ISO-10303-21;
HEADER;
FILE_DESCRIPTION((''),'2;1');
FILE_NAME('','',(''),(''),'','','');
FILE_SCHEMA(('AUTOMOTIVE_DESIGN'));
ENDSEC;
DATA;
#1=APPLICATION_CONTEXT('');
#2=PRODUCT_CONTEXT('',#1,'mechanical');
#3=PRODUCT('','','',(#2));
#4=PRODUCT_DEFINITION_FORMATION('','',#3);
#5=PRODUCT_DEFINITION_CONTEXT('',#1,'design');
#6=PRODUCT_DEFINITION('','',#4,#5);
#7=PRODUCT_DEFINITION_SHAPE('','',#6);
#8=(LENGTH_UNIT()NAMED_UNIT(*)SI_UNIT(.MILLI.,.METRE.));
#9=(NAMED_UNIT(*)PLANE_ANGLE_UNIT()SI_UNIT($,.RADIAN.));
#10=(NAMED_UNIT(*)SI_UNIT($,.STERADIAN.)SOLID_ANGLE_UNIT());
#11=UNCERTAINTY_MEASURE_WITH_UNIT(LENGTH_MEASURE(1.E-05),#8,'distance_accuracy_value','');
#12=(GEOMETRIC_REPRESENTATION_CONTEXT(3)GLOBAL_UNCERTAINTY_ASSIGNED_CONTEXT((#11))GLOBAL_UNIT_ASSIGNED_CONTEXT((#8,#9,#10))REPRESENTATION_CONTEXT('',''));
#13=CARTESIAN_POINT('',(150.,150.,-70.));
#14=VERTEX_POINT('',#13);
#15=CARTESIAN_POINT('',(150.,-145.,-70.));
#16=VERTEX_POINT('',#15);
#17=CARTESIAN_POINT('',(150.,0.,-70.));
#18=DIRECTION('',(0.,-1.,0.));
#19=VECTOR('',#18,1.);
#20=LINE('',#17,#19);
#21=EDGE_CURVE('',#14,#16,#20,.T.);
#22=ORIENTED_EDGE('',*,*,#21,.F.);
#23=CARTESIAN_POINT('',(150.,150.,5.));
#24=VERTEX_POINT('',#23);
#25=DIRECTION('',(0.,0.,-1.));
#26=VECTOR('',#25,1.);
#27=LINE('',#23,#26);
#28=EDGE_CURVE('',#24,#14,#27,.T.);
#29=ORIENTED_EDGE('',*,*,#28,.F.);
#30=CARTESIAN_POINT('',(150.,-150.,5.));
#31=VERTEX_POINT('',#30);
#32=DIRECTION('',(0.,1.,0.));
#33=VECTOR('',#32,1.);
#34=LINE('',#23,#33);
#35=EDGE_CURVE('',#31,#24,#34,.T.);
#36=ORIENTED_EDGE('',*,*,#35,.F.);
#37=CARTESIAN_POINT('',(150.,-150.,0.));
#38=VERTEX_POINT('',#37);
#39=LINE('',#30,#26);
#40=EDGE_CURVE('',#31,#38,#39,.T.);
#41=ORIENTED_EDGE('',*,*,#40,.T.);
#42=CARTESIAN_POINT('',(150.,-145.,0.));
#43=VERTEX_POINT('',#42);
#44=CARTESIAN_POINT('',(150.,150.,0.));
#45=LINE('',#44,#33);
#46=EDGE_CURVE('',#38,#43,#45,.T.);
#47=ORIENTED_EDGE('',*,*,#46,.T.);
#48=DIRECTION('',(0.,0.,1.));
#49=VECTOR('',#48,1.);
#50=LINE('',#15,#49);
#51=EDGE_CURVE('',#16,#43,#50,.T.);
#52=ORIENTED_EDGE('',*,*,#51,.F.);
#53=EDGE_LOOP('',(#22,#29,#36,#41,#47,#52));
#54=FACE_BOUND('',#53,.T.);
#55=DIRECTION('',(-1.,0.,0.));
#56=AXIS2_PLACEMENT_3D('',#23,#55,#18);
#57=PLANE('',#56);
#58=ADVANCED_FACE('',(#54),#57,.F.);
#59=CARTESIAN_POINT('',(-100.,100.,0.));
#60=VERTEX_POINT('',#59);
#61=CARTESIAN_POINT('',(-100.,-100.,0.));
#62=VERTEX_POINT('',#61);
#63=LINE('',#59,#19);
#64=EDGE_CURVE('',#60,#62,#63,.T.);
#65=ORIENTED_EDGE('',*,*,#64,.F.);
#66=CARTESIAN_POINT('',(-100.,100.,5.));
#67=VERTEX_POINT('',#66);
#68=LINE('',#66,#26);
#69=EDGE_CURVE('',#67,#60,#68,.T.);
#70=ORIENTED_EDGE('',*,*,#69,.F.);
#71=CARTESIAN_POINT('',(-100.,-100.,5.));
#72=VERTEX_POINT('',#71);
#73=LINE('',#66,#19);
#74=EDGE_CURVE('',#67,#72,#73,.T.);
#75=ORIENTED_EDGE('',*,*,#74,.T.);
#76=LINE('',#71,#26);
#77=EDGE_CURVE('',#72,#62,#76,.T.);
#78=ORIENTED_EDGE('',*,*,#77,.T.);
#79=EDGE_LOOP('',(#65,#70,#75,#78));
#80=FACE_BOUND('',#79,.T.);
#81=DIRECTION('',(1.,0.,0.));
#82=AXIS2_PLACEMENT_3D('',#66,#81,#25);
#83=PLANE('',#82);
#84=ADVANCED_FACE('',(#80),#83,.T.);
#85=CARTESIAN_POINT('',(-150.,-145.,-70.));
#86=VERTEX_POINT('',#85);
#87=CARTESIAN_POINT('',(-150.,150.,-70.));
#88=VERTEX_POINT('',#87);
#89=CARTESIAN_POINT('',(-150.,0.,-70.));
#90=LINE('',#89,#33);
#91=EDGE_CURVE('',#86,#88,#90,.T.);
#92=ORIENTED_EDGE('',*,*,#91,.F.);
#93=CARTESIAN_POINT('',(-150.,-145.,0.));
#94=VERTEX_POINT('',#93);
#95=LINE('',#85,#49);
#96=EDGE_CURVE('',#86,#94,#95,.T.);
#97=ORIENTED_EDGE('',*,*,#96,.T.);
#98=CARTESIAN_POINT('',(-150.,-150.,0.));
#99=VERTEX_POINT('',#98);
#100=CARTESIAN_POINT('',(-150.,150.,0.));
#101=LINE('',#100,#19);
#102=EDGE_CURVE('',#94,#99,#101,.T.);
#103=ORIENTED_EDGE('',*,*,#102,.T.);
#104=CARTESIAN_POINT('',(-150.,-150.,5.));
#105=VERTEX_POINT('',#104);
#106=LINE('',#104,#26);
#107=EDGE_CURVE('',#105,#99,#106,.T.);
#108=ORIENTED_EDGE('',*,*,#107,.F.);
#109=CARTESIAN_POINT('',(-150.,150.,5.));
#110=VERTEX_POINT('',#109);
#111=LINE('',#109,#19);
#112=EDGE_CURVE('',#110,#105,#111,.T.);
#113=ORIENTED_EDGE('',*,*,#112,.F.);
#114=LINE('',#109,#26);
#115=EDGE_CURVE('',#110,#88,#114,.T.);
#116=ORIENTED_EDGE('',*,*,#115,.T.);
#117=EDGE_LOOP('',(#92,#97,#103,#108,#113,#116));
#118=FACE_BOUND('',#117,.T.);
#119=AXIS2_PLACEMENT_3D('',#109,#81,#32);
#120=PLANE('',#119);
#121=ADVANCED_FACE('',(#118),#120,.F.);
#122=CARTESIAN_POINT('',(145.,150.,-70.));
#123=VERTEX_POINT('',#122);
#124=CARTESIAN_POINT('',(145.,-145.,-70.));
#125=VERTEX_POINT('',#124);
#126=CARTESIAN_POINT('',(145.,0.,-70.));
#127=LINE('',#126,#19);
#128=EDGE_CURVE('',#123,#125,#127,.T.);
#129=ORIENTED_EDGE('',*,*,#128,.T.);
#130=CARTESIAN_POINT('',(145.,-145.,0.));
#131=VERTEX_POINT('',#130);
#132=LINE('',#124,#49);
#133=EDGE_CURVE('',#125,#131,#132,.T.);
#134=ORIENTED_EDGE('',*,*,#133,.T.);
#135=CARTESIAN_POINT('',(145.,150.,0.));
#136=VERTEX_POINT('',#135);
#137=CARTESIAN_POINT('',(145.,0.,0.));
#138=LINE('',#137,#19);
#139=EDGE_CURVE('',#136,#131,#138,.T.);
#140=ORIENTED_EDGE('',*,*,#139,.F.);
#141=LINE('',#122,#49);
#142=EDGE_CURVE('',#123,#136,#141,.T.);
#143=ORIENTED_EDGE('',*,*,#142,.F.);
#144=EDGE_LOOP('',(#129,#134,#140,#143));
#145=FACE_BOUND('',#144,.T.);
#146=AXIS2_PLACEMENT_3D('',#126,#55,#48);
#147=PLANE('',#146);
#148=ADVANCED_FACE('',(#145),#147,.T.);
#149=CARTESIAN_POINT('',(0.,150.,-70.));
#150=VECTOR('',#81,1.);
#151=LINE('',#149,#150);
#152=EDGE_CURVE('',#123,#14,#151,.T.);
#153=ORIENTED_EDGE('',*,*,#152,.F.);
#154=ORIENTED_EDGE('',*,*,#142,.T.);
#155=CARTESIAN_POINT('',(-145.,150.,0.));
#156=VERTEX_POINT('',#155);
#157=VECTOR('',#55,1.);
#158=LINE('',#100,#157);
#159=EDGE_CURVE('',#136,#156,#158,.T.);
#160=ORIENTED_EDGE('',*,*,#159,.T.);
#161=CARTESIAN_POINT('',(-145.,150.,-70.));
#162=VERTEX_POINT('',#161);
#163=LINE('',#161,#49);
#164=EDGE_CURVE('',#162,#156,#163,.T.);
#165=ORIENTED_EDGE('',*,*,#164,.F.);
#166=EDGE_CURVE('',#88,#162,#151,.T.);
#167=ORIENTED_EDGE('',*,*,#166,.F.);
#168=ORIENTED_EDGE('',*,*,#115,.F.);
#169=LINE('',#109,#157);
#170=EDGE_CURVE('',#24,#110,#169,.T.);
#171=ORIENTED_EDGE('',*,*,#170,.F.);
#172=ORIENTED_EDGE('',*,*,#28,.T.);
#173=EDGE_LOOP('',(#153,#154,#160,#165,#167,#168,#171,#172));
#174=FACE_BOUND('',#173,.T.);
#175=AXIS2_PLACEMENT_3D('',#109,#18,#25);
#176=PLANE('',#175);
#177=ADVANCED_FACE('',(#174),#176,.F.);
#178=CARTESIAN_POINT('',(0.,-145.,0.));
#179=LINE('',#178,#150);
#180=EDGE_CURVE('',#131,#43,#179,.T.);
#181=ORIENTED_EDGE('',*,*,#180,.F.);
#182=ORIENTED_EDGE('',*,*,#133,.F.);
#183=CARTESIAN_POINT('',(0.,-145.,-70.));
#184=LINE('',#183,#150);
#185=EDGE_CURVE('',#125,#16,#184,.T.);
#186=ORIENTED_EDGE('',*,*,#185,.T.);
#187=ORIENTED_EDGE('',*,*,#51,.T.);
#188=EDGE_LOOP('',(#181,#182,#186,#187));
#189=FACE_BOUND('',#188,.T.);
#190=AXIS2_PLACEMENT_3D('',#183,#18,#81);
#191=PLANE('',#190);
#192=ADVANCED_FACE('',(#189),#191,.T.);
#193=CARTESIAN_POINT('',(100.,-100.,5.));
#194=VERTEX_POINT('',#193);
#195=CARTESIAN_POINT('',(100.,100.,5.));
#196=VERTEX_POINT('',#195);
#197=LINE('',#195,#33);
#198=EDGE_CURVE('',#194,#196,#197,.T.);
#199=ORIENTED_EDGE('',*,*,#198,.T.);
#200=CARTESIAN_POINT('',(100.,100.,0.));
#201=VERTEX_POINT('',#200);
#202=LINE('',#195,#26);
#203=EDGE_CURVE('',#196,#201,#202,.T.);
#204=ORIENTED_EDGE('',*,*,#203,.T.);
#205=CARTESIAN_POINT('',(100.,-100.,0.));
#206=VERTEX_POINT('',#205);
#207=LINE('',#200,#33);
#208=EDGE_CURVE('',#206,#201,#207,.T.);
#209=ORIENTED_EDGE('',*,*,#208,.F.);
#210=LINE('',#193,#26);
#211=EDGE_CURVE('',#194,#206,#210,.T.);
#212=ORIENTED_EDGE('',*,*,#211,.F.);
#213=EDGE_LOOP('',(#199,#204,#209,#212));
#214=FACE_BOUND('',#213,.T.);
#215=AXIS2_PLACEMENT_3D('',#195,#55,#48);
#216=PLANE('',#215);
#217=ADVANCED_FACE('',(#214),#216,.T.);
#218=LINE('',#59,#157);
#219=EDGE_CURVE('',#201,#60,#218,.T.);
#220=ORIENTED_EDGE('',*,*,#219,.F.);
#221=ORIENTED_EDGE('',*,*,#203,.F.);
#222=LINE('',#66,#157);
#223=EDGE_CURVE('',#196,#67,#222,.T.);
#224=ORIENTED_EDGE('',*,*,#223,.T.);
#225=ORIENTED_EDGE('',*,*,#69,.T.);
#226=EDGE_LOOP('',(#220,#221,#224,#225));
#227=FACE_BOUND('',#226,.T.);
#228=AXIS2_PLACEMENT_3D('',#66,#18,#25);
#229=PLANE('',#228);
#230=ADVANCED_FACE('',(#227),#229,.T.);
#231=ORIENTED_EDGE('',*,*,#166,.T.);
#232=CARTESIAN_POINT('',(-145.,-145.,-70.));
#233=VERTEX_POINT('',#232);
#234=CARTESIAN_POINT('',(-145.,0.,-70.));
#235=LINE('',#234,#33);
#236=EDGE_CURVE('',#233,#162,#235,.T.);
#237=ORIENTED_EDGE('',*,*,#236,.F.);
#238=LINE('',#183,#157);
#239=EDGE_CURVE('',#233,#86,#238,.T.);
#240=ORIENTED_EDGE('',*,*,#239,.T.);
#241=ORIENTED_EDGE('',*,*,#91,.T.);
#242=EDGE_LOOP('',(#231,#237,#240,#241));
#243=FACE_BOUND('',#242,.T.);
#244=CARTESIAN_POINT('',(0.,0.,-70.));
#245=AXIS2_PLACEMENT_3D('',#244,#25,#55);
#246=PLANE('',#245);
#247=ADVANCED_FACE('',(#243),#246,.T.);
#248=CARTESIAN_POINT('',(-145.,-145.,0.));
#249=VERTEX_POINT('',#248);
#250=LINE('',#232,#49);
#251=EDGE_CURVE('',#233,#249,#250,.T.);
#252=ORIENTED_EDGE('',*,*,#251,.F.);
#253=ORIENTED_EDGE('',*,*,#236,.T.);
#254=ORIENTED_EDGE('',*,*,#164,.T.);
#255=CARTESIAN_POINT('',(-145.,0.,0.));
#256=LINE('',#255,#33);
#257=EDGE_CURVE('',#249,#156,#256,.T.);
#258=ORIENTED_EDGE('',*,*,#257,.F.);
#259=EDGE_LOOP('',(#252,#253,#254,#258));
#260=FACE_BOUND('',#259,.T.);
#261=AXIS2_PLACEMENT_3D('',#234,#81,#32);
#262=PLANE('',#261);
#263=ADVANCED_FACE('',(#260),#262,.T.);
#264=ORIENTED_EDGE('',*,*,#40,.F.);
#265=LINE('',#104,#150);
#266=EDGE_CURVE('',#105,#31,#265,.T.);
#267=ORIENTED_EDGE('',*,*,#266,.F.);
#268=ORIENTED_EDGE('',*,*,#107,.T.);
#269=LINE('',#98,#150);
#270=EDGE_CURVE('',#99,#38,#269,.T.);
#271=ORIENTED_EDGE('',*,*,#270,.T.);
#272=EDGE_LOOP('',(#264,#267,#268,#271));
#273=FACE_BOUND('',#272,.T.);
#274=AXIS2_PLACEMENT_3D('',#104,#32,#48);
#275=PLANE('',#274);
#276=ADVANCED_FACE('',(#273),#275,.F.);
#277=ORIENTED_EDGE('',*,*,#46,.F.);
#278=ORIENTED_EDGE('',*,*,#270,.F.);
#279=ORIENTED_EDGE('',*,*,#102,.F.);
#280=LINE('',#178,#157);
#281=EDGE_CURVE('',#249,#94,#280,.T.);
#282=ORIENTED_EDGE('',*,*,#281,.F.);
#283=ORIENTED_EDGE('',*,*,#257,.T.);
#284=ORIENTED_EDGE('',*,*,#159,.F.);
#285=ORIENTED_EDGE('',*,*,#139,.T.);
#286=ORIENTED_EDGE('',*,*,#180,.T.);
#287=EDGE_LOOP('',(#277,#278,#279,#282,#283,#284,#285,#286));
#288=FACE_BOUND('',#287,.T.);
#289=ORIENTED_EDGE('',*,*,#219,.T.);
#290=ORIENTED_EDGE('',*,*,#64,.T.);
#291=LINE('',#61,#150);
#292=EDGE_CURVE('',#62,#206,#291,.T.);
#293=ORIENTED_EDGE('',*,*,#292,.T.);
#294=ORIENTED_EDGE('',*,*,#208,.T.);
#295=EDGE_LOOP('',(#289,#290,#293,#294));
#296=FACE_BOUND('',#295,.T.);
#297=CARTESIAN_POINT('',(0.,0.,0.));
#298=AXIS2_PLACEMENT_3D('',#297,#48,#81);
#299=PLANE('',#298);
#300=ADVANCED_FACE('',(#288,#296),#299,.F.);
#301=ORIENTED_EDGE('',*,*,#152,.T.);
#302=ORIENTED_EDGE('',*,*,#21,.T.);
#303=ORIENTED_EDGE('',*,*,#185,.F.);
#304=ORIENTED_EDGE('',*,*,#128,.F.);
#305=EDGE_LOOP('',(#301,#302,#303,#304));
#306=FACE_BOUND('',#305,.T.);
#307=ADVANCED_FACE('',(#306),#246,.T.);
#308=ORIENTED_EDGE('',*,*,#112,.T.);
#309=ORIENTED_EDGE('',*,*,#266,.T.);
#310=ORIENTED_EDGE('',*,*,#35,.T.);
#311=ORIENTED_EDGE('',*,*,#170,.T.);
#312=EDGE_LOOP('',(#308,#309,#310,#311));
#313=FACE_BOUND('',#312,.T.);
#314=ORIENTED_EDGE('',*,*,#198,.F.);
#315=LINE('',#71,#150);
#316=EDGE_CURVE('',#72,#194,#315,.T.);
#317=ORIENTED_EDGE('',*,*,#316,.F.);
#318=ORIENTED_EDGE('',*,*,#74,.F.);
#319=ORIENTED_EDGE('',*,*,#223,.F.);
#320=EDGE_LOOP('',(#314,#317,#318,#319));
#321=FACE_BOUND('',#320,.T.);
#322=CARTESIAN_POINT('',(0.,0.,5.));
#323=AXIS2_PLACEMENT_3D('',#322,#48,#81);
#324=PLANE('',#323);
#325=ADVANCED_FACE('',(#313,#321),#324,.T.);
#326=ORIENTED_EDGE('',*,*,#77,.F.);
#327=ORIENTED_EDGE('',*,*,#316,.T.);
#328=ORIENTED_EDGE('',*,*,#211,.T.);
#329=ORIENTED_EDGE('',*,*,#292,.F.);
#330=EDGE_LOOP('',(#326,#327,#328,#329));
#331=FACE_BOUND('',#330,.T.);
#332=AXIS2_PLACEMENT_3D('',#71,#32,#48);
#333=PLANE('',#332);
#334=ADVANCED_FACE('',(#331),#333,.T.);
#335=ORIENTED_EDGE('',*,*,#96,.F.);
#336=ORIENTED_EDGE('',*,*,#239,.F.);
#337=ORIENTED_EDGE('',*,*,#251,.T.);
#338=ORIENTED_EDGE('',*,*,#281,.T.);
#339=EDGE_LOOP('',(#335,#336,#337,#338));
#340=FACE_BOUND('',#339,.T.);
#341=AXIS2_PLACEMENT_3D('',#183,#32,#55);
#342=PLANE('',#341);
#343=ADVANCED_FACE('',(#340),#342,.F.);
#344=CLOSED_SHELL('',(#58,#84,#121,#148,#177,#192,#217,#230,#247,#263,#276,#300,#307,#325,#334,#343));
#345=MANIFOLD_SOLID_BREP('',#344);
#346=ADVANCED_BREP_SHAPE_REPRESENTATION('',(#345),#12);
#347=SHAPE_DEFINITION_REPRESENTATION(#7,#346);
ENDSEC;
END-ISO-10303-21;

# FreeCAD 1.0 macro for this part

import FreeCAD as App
import Part
import Sketcher
from FreeCAD import Vector


def add_polygon(sketch, points):
    """Adds a closed chain of lines whose ends are joined by coincident constraints."""
    first, n = sketch.GeometryCount, len(points)
    for a, b in zip(points, points[1:] + points[:1]):
        sketch.addGeometry(Part.LineSegment(App.Vector(*a, 0), App.Vector(*b, 0)), False)
    for i in range(n):
        sketch.addConstraint(Sketcher.Constraint("Coincident", first + i, 2, first + (i + 1) % n, 1))

doc = App.newDocument("Part")
params = doc.addObject("Spreadsheet::Sheet", "Params")
for row, (alias, value) in enumerate([
    ("sketch1_width", "300 mm"),
    ("sketch1_width2", "200 mm"),
    ("pad1_length", "5 mm"),
    ("sketch2_width", "5 mm"),
    ("sketch2_height", "295 mm"),
    ("pad2_length", "70 mm"),
], start=1):
    params.set(f"A{row}", alias)
    params.set(f"B{row}", "=" + value)
    params.setAlias(f"B{row}", alias)

body = doc.addObject("PartDesign::Body", "Body")

sketch1 = body.newObject("Sketcher::SketchObject", "Sketch")
sketch1.AttachmentSupport = (doc.getObject("XY_Plane"), [""])
sketch1.MapMode = "FlatFace"
add_polygon(sketch1, [(-150, 150), (-150, -150), (150, -150), (150, 150)])
add_polygon(sketch1, [(100, -100), (-100, -100), (-100, 100), (100, 100)])
sketch1.addConstraint([
    Sketcher.Constraint("Vertical", 0),
    Sketcher.Constraint("Horizontal", 1),
    Sketcher.Constraint("Vertical", 2),
    Sketcher.Constraint("Horizontal", 3),
    Sketcher.Constraint("Horizontal", 4),
    Sketcher.Constraint("Vertical", 5),
    Sketcher.Constraint("Horizontal", 6),
    Sketcher.Constraint("Vertical", 7),
    Sketcher.Constraint("Symmetric", 0, 2, 2, 2, -1, 1),
    Sketcher.Constraint("Symmetric", 4, 2, 6, 2, -1, 1),
    Sketcher.Constraint("Equal", 3, 0),
    Sketcher.Constraint("Equal", 6, 5),
    Sketcher.Constraint("DistanceX", 1, 1, 1, 2, 300.0),
    Sketcher.Constraint("DistanceX", 4, 2, 4, 1, 200.0),
])
sketch1.setExpression("Constraints[20]", "Params.sketch1_width")
sketch1.setExpression("Constraints[21]", "Params.sketch1_width2")
pad1 = body.newObject("PartDesign::Pad", "Pad")
pad1.Profile = sketch1
pad1.setExpression("Length", "Params.pad1_length")

sketch2 = body.newObject("Sketcher::SketchObject", "Sketch001")
sketch2.AttachmentSupport = (doc.getObject("XY_Plane"), [""])
sketch2.MapMode = "FlatFace"
add_polygon(sketch2, [(150, -145), (145, -145), (145, 150), (150, 150)])
add_polygon(sketch2, [(-145, -145), (-150, -145), (-150, 150), (-145, 150)])
sketch2.addConstraint([
    Sketcher.Constraint("Horizontal", 0),
    Sketcher.Constraint("Vertical", 1),
    Sketcher.Constraint("Horizontal", 2),
    Sketcher.Constraint("Vertical", 3),
    Sketcher.Constraint("Horizontal", 4),
    Sketcher.Constraint("Vertical", 5),
    Sketcher.Constraint("Horizontal", 6),
    Sketcher.Constraint("Vertical", 7),
    Sketcher.Constraint("Symmetric", 3, 2, 4, 2, -2),
    Sketcher.Constraint("Symmetric", 1, 2, 6, 2, -2),
    Sketcher.Constraint("DistanceX", 0, 2, 0, 1, 5.0),
    Sketcher.Constraint("DistanceY", 1, 1, 1, 2, 295.0),
    Sketcher.Constraint("DistanceX", -1, 1, 0, 2, 145.0),
    Sketcher.Constraint("DistanceY", 0, 2, -1, 1, 145.0),
])
sketch2.setExpression("Constraints[18]", "Params.sketch2_width")
sketch2.setExpression("Constraints[19]", "Params.sketch2_height")
pad2 = body.newObject("PartDesign::Pad", "Pad001")
pad2.Profile = sketch2
pad2.setExpression("Length", "Params.pad2_length")
pad2.Reversed = True

doc.recompute()
